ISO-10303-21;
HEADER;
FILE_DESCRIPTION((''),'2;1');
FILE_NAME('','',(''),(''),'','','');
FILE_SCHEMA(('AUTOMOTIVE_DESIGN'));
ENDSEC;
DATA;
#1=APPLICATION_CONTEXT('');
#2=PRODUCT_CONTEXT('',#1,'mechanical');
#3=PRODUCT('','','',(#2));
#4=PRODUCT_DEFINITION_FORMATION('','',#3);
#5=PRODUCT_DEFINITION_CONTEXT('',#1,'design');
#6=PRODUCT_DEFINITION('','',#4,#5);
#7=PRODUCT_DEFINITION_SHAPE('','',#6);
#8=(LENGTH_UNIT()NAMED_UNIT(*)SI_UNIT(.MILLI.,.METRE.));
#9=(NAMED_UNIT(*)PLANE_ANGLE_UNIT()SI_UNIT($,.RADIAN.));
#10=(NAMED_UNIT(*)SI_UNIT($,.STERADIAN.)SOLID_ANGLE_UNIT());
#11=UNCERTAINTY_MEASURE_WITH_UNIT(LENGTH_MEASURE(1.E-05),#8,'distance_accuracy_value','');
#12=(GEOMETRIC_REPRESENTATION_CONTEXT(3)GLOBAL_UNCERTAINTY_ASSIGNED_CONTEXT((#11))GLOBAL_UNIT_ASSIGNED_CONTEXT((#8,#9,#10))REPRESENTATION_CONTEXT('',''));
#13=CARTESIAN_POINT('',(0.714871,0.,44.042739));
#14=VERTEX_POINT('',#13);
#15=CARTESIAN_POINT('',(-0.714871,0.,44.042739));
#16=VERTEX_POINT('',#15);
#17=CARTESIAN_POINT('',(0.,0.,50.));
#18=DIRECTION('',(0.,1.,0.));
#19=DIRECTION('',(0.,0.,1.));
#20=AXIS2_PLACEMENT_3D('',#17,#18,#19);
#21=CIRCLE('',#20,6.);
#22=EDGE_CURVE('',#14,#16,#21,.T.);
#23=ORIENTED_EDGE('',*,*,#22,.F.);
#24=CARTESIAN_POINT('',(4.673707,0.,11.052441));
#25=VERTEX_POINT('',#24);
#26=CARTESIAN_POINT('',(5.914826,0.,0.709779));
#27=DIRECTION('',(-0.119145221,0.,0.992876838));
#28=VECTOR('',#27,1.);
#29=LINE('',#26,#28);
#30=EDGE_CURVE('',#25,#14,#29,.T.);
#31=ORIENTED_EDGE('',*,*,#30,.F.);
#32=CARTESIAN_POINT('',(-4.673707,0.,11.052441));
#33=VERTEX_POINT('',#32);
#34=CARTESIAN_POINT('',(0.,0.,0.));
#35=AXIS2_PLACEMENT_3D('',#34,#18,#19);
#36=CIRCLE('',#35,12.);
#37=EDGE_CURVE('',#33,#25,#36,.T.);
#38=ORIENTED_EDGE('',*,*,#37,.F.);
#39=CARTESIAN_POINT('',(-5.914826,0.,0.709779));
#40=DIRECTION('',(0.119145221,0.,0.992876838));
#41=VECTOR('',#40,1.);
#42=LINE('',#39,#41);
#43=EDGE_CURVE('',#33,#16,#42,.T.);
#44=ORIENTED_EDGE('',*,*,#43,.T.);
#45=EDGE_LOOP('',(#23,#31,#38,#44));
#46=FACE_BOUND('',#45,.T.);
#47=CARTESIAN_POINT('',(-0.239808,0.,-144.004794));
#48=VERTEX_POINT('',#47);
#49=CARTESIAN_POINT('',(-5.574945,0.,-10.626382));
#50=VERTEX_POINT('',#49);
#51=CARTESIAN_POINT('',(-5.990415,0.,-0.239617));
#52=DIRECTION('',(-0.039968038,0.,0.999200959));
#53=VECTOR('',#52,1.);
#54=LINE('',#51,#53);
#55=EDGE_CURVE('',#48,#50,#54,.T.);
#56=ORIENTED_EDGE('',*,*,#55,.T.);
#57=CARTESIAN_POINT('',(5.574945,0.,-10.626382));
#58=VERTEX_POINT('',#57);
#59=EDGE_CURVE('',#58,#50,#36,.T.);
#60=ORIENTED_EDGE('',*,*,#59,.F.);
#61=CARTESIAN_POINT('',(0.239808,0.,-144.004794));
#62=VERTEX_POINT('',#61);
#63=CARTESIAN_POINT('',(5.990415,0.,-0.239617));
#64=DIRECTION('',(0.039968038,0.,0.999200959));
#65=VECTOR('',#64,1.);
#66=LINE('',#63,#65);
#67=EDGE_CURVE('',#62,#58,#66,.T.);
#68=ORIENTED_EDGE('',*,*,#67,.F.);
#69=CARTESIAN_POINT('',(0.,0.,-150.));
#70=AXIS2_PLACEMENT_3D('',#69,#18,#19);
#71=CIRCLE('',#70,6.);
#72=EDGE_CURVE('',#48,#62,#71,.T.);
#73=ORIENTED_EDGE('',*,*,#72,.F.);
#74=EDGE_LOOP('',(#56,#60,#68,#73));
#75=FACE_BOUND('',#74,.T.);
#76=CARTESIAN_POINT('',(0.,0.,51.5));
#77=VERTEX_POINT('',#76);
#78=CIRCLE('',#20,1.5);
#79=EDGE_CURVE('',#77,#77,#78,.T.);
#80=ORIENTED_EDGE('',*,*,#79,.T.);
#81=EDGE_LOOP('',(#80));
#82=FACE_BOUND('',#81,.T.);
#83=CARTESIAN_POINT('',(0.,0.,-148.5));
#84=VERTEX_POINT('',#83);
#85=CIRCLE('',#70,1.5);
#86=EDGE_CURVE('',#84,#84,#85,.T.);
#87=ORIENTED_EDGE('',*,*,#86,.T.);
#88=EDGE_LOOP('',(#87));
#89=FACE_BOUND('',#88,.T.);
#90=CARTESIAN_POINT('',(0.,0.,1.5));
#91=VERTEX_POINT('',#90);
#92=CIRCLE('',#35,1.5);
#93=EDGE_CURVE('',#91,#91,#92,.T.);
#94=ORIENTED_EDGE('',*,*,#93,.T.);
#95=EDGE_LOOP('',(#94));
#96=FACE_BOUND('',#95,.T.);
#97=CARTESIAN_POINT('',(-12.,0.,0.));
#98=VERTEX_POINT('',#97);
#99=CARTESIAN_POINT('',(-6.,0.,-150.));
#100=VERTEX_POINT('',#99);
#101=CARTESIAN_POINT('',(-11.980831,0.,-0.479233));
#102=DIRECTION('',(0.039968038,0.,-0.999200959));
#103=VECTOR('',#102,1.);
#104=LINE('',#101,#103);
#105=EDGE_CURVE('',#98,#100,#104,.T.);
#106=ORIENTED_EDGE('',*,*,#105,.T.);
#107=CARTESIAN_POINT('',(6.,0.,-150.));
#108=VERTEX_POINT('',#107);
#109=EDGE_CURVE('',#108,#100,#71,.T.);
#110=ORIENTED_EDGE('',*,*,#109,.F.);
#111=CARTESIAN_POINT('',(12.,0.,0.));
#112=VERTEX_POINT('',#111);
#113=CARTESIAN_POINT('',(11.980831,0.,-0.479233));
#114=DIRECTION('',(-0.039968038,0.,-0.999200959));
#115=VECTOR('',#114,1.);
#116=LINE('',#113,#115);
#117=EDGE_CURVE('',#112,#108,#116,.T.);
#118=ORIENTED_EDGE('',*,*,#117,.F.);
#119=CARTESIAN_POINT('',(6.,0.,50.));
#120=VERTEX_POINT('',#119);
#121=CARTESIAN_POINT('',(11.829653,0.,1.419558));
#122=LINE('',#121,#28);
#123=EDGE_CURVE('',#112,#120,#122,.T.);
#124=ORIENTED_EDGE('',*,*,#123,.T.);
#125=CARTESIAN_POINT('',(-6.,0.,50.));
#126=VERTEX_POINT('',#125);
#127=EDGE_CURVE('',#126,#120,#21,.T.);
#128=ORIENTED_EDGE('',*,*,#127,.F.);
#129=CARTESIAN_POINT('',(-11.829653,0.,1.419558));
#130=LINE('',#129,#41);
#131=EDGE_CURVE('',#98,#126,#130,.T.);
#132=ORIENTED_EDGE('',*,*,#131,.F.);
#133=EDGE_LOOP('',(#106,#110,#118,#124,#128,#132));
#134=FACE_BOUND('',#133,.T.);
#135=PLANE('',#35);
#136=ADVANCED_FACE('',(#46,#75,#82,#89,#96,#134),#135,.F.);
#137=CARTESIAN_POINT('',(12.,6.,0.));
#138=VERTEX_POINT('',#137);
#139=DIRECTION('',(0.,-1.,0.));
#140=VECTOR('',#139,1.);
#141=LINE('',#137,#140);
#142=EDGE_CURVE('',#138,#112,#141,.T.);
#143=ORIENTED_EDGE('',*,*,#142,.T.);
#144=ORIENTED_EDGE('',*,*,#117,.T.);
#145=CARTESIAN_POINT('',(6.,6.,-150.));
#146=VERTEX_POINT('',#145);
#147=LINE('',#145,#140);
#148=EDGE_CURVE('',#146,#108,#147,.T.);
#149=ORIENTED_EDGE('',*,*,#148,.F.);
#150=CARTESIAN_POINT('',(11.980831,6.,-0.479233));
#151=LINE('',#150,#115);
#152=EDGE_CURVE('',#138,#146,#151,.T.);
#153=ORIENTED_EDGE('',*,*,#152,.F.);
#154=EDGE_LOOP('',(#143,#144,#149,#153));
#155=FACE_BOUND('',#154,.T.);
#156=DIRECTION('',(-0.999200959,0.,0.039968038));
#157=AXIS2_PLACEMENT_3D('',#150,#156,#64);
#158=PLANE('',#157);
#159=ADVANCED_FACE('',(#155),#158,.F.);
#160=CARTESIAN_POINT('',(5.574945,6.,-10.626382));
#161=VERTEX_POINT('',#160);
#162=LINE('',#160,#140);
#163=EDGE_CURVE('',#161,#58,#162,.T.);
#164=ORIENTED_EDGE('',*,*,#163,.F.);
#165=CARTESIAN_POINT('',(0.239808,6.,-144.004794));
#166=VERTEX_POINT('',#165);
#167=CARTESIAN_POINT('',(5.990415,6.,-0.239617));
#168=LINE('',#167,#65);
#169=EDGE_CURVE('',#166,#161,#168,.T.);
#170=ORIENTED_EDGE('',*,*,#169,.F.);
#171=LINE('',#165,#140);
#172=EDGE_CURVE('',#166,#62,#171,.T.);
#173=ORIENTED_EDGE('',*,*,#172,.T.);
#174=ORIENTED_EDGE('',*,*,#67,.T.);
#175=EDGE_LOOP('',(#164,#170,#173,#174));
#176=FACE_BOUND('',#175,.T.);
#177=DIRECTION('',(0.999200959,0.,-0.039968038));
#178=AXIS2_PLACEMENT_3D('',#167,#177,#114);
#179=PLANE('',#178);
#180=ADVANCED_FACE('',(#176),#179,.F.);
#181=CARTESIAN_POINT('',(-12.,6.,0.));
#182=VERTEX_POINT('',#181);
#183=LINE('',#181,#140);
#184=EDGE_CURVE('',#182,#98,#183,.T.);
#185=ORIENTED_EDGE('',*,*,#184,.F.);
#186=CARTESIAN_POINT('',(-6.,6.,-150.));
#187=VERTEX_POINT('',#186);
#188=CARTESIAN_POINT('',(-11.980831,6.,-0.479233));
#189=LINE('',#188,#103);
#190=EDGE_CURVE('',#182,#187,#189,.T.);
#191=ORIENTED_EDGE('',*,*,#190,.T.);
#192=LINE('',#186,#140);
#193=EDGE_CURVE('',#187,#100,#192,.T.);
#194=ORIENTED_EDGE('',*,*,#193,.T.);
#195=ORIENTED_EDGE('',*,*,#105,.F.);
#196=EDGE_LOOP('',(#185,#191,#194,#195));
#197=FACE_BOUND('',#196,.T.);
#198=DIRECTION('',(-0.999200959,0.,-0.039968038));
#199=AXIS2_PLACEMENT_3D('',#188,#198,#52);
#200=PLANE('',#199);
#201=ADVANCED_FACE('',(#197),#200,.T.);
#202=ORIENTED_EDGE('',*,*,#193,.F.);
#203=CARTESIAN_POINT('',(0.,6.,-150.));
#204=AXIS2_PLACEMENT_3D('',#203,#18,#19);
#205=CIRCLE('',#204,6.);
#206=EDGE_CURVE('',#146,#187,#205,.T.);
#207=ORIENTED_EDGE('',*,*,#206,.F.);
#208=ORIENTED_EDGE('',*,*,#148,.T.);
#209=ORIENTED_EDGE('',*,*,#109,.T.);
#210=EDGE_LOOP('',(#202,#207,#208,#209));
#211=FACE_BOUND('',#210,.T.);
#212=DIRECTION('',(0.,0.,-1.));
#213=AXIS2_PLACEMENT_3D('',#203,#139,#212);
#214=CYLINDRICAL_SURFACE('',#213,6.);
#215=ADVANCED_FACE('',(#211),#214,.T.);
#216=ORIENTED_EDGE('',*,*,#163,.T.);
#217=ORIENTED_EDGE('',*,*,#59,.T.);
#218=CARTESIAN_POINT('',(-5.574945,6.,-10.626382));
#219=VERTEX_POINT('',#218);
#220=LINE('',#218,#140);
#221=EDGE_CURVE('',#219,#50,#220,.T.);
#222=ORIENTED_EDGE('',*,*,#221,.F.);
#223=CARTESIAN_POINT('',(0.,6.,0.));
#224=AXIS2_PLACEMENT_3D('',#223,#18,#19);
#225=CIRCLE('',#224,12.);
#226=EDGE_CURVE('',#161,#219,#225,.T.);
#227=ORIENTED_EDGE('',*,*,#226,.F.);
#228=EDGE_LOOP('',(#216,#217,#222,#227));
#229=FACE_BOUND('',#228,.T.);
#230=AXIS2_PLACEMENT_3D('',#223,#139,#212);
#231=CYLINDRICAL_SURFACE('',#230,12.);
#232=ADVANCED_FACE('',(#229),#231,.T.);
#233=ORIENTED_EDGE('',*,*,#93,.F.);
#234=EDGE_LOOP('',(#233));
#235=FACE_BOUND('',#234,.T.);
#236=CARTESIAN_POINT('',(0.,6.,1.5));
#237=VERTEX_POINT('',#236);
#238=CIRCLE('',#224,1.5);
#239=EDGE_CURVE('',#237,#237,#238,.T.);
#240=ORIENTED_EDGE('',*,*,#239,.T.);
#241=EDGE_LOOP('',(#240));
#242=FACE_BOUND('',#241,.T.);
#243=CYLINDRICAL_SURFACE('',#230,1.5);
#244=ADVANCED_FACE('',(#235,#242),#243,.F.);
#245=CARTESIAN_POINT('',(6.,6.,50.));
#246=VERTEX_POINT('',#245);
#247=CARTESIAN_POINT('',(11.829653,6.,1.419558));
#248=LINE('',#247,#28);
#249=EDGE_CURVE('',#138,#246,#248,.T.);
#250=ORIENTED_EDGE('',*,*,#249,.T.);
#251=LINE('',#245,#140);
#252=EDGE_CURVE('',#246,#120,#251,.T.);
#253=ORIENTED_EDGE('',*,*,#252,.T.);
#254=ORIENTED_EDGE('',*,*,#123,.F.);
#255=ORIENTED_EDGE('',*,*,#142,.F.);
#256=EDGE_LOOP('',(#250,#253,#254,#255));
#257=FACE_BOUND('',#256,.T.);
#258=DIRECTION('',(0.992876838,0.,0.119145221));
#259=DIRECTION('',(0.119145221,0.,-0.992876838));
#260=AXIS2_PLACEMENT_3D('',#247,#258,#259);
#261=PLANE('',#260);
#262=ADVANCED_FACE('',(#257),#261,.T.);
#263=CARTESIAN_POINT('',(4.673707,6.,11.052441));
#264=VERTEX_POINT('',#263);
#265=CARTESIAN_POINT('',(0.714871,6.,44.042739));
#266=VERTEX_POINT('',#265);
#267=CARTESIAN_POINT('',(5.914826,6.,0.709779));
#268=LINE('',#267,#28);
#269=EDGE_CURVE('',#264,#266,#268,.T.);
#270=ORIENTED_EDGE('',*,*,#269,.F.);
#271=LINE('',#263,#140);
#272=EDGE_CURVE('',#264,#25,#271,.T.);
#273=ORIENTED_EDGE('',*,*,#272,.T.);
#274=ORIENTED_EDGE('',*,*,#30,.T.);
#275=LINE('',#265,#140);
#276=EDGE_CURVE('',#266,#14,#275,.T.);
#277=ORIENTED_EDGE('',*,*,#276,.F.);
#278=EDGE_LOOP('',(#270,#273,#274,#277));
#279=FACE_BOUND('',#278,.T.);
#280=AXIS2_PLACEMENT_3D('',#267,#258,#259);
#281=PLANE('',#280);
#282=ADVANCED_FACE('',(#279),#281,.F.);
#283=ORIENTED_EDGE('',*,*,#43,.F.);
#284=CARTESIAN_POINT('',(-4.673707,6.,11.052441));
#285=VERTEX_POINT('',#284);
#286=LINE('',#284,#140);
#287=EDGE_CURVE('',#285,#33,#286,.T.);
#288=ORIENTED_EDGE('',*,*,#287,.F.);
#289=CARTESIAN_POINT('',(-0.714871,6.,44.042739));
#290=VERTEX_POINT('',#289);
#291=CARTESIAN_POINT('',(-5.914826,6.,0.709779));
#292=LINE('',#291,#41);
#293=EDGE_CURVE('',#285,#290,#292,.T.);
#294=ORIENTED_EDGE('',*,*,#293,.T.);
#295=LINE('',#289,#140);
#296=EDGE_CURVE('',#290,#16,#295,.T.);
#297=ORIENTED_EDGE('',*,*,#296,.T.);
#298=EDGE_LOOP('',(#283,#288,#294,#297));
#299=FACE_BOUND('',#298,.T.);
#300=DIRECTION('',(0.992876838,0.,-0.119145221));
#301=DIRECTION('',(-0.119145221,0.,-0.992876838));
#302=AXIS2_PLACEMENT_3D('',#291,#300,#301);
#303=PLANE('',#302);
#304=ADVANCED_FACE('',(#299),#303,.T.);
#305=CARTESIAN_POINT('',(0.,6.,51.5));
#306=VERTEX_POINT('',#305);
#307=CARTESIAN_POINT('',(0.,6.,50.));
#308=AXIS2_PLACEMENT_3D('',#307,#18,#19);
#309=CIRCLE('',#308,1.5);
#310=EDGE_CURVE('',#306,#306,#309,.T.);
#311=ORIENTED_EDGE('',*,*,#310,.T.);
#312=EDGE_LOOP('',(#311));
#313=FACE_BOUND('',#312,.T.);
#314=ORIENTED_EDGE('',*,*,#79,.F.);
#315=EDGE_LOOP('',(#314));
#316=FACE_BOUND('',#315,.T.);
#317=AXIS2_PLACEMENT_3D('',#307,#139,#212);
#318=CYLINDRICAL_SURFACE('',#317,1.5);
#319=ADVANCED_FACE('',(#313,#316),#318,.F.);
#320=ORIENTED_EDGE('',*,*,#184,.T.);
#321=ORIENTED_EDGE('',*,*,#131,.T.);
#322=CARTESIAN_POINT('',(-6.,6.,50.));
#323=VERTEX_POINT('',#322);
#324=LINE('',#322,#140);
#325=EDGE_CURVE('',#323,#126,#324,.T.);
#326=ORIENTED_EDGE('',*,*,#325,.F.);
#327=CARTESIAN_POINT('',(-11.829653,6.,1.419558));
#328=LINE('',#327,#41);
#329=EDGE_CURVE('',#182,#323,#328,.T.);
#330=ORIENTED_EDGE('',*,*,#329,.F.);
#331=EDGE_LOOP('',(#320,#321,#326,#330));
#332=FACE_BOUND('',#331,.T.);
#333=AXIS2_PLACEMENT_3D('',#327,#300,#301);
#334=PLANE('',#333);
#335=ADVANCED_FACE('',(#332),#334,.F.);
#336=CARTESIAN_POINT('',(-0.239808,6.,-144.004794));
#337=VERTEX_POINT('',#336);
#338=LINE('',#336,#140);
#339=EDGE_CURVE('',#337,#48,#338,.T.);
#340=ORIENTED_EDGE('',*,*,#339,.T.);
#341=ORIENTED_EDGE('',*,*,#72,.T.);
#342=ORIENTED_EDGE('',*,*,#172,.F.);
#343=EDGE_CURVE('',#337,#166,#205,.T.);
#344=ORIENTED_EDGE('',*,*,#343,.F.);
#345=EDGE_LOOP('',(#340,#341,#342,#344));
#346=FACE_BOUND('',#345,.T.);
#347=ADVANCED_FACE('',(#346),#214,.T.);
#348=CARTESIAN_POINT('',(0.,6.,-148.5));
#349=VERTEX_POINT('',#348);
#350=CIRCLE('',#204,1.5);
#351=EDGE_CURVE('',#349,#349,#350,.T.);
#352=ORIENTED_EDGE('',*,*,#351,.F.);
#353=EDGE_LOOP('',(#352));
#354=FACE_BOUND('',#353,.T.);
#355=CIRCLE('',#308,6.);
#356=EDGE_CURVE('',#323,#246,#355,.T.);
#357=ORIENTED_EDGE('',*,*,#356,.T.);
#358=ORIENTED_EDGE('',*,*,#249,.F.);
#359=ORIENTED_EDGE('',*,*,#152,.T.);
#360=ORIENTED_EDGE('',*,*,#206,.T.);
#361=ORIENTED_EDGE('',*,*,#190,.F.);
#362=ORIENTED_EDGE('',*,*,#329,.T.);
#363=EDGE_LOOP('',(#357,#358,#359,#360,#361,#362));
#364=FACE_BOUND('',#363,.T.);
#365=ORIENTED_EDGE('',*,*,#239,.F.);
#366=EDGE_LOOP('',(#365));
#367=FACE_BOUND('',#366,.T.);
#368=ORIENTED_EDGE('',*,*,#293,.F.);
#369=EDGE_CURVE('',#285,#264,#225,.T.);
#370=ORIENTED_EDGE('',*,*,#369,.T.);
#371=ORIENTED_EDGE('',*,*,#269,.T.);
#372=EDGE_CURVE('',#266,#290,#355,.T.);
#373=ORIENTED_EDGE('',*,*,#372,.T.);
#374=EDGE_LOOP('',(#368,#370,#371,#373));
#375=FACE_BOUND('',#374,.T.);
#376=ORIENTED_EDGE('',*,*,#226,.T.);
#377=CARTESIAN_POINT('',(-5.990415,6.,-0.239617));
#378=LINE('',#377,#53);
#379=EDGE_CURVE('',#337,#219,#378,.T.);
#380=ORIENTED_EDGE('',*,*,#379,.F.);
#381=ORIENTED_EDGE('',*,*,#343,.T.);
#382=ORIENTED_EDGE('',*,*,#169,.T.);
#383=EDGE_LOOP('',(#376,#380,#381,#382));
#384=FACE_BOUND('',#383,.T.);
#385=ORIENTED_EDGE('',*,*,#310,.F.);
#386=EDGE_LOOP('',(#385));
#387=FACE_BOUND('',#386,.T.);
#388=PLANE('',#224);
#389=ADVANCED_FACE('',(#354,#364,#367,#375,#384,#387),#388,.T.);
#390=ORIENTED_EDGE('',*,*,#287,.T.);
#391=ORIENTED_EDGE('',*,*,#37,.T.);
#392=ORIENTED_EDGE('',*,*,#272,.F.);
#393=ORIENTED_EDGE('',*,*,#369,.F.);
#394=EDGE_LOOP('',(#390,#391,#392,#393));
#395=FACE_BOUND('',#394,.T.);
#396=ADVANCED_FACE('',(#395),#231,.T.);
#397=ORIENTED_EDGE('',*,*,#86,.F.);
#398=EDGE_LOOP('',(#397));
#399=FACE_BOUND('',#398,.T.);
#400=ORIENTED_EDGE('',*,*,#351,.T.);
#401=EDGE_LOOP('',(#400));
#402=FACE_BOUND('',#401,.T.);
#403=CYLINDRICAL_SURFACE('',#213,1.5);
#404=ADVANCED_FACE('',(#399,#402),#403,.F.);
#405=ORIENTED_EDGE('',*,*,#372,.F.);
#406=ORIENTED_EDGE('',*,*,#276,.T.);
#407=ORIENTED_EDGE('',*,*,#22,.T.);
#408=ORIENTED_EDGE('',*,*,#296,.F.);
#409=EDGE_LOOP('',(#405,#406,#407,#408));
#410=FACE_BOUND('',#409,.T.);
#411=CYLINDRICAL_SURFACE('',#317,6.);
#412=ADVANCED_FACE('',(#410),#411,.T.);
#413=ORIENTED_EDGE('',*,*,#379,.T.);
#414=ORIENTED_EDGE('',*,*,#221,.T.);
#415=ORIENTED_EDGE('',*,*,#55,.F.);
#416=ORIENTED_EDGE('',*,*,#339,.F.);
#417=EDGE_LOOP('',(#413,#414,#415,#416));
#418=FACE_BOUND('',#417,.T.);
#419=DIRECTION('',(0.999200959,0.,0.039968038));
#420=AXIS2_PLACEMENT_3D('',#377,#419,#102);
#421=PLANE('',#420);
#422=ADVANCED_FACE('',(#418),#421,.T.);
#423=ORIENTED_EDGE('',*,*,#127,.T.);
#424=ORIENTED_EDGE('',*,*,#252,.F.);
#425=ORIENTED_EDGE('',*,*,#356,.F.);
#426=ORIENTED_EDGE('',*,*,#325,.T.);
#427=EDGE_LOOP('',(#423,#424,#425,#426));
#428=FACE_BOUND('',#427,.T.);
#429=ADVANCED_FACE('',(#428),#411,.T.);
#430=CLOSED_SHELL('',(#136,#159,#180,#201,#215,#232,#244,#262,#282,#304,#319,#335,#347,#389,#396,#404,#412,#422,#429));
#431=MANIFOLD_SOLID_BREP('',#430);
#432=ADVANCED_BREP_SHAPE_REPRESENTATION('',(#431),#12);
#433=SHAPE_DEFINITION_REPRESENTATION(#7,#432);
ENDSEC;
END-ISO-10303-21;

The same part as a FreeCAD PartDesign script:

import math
import FreeCAD as App
import Part
import Sketcher
from FreeCAD import Vector

doc = App.newDocument("Part")
body = doc.addObject("PartDesign::Body", "Body")

sketch1 = body.newObject("Sketcher::SketchObject", "Sketch")
sketch1.AttachmentSupport = (doc.getObject("XZ_Plane"), [""])
sketch1.MapMode = "FlatFace"
sketch1.addGeometry([
    Part.LineSegment(Vector(12, 0, 0), Vector(6, -150, 0)),
    Part.ArcOfCircle(Part.Circle(Vector(0, -150, 0), Vector(0, 0, 1), 6), math.radians(180), math.radians(360)),
    Part.LineSegment(Vector(-6, -150, 0), Vector(-12, 0, 0)),
    Part.LineSegment(Vector(-12, 0, 0), Vector(-6, 50, 0)),
    Part.ArcOfCircle(Part.Circle(Vector(0, 50, 0), Vector(0, 0, 1), 6), math.radians(0), math.radians(180)),
    Part.LineSegment(Vector(6, 50, 0), Vector(12, 0, 0)),
    Part.Circle(Vector(0, 50, 0), Vector(0, 0, 1), 1.5),
    Part.ArcOfCircle(Part.Circle(Vector(0, 50, 0), Vector(0, 0, 1), 6), math.radians(-96.842773), math.radians(-83.157227)),
    Part.LineSegment(Vector(-0.714871, 44.042739, 0), Vector(-4.673707, 11.052441, 0)),
    Part.ArcOfCircle(Part.Circle(Vector(0, 0, 0), Vector(0, 0, 1), 12), math.radians(67.078127), math.radians(112.921873)),
    Part.LineSegment(Vector(4.673707, 11.052441, 0), Vector(0.714871, 44.042739, 0)),
    Part.Circle(Vector(0, 0, 0), Vector(0, 0, 1), 1.5),
    Part.ArcOfCircle(Part.Circle(Vector(0, -150, 0), Vector(0, 0, 1), 6), math.radians(87.70939), math.radians(92.29061)),
    Part.LineSegment(Vector(0.239808, -144.004794, 0), Vector(5.574945, -10.626382, 0)),
    Part.ArcOfCircle(Part.Circle(Vector(0, 0, 0), Vector(0, 0, 1), 12), math.radians(-117.682961), math.radians(-62.317039)),
    Part.LineSegment(Vector(-5.574945, -10.626382, 0), Vector(-0.239808, -144.004794, 0)),
    Part.Circle(Vector(0, -150, 0), Vector(0, 0, 1), 1.5),
], False)
sketch1.addConstraint([
    Sketcher.Constraint("Coincident", 0, 2, 1, 2),
    Sketcher.Constraint("Coincident", 1, 1, 2, 1),
    Sketcher.Constraint("Coincident", 2, 2, 3, 1),
    Sketcher.Constraint("Coincident", 3, 2, 4, 2),
    Sketcher.Constraint("Coincident", 4, 1, 5, 1),
    Sketcher.Constraint("Coincident", 5, 2, 0, 1),
    Sketcher.Constraint("Coincident", 7, 1, 8, 1),
    Sketcher.Constraint("Coincident", 8, 2, 9, 2),
    Sketcher.Constraint("Coincident", 9, 1, 10, 1),
    Sketcher.Constraint("Coincident", 10, 2, 7, 2),
    Sketcher.Constraint("Coincident", 12, 1, 13, 1),
    Sketcher.Constraint("Coincident", 13, 2, 14, 2),
    Sketcher.Constraint("Coincident", 14, 1, 15, 1),
    Sketcher.Constraint("Coincident", 15, 2, 12, 2),
    Sketcher.Constraint("Coincident", 9, 3, -1, 1),
    Sketcher.Constraint("Coincident", 11, 3, -1, 1),
    Sketcher.Constraint("Coincident", 14, 3, -1, 1),
    Sketcher.Constraint("Coincident", 6, 3, 4, 3),
    Sketcher.Constraint("Coincident", 7, 3, 4, 3),
    Sketcher.Constraint("Coincident", 12, 3, 1, 3),
    Sketcher.Constraint("Coincident", 16, 3, 1, 3),
    Sketcher.Constraint("Equal", 1, 4),
    Sketcher.Constraint("Equal", 4, 7),
    Sketcher.Constraint("Equal", 6, 11),
    Sketcher.Constraint("Equal", 7, 12),
    Sketcher.Constraint("Equal", 9, 14),
    Sketcher.Constraint("Equal", 11, 16),
    Sketcher.Constraint("Symmetric", 2, 2, 5, 2, -1, 1),
    Sketcher.Constraint("Symmetric", 0, 2, 1, 1, -2),
    Sketcher.Constraint("Symmetric", 3, 2, 4, 1, -2),
    Sketcher.Constraint("PointOnObject", 2, 2, -1),
    Sketcher.Constraint("Parallel", 3, 8),
    Sketcher.Constraint("Parallel", 5, 10),
    Sketcher.Constraint("Parallel", 0, 13),
    Sketcher.Constraint("Parallel", 2, 15),
    Sketcher.Constraint("Horizontal", 16, 3, 0, 2),
    Sketcher.Constraint("Horizontal", 7, 3, 3, 2),
    Sketcher.Constraint("Horizontal", 8, 2, 9, 1),
    Sketcher.Constraint("Horizontal", 13, 2, 14, 1),
    Sketcher.Constraint("Diameter", 6, 3.0),
    Sketcher.Constraint("Radius", 1, 6.0),
    Sketcher.Constraint("Radius", 9, 12.0),
    Sketcher.Constraint("DistanceY", 1, 3, -1, 1, 150.0),
    Sketcher.Constraint("DistanceY", -1, 1, 4, 3, 50.0),
    Sketcher.Constraint("DistanceX", 2, 2, -1, 1, 12.0),
    Sketcher.Constraint("Distance", 8, 33.226979),
    Sketcher.Constraint("DistanceX", -1, 1, 12, 1, 0.239808),
])
pad1 = body.newObject("PartDesign::Pad", "Pad")
pad1.Profile = sketch1
pad1.Length = 6
pad1.Reversed = True

doc.recompute()
